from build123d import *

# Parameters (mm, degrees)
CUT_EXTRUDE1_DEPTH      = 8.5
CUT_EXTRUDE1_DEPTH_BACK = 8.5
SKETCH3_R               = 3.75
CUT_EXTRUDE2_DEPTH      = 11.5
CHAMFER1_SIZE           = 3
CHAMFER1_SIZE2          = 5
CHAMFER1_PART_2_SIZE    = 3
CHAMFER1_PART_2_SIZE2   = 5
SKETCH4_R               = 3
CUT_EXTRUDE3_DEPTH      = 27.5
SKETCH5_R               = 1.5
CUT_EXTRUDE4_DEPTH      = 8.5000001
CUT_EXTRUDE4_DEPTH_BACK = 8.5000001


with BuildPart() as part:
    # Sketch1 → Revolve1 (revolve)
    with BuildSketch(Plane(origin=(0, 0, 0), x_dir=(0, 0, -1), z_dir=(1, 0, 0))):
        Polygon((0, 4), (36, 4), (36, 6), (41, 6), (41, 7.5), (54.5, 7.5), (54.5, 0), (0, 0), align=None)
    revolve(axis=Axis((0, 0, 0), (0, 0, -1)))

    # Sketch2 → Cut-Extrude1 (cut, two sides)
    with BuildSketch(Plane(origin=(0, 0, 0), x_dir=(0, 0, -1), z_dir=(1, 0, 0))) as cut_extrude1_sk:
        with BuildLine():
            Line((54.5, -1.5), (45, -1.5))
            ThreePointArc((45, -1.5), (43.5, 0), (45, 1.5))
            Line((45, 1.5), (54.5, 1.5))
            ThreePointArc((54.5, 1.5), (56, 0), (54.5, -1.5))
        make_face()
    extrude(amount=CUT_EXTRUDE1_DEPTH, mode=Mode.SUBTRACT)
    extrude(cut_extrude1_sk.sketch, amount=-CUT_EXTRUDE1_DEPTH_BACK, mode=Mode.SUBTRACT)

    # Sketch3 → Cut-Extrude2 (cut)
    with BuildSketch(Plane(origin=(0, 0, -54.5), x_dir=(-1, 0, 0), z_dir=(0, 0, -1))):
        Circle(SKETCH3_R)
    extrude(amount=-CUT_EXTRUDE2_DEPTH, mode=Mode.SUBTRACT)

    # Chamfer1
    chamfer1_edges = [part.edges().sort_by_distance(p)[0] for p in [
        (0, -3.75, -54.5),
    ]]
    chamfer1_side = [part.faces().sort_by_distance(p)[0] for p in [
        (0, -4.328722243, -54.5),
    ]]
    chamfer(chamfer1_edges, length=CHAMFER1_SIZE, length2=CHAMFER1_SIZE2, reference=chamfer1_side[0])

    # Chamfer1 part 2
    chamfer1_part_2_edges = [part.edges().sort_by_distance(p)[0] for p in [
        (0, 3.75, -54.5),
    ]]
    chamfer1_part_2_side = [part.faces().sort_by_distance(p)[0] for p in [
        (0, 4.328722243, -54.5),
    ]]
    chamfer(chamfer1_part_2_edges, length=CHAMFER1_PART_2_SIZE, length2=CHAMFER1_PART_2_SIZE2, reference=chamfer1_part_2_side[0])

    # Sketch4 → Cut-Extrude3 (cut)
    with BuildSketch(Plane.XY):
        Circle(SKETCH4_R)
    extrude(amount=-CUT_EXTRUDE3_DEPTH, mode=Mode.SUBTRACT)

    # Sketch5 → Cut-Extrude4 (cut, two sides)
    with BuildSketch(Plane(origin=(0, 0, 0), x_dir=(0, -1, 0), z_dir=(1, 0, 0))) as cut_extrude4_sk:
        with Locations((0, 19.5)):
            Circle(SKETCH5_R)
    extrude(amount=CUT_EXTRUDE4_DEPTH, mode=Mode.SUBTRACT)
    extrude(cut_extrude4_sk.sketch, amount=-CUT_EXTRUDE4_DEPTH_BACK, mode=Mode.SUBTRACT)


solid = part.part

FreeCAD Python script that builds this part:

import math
import FreeCAD as App
import Part
import Sketcher

V = App.Vector
Q = App.Units.Quantity


def edges_at(feature, points):
    """Names of the edges that pass closest to the given points."""
    edges = feature.Shape.Edges
    near = lambda p: min(range(len(edges)), key=lambda i: edges[i].distToShape(Part.Vertex(*p))[0])
    return sorted({f"Edge{near(p) + 1}" for p in points})


def add_polygon(sketch, points):
    """Adds a closed chain of lines whose ends are joined by coincident constraints."""
    first, n = sketch.GeometryCount, len(points)
    for a, b in zip(points, points[1:] + points[:1]):
        sketch.addGeometry(Part.LineSegment(App.Vector(*a, 0), App.Vector(*b, 0)), False)
    for i in range(n):
        sketch.addConstraint(Sketcher.Constraint("Coincident", first + i, 2, first + (i + 1) % n, 1))

doc = App.newDocument("Part")
params = doc.addObject("Spreadsheet::Sheet", "Params")
for row, (alias, value) in enumerate([
    ("sketch1_width", "4 mm"),
    ("sketch1_width2", "2 mm"),
    ("sketch1_height", "36 mm"),
    ("sketch1_height2", "5 mm"),
    ("sketch1_width3", "7.5 mm"),
    ("revolution_angle", "360 deg"),
    ("sketch2_radius", "1.5 mm"),
    ("sketch2_height", "9.5 mm"),
    ("sketch3_diameter", "7.5 mm"),
    ("pocket2_length", "11.5 mm"),
    ("chamfer_size", "3 mm"),
    ("chamfer_size2", "5 mm"),
    ("chamfer2_size", "3 mm"),
    ("chamfer2_size2", "5 mm"),
    ("sketch4_diameter", "6 mm"),
    ("pocket3_length", "27.5 mm"),
    ("sketch5_diameter", "3 mm"),
], start=1):
    params.set(f"A{row}", alias)
    params.set(f"B{row}", "=" + value)
    params.setAlias(f"B{row}", alias)

body = doc.addObject("PartDesign::Body", "Body")

# Sketch on YZ plane
sketch1 = body.newObject("Sketcher::SketchObject", "Sketch")
sketch1.AttachmentSupport = (doc.getObject("YZ_Plane"), [""])
sketch1.MapMode = "FlatFace"
add_polygon(sketch1, [(4, -36), (4, 0), (0, 0), (0, -54.5), (7.5, -54.5), (7.5, -41), (6, -41), (6, -36)])  # lines 0-7
sketch1.addConstraint([
    Sketcher.Constraint("Vertical", 0),
    Sketcher.Constraint("Horizontal", 1),
    Sketcher.Constraint("Vertical", 2),
    Sketcher.Constraint("Horizontal", 3),
    Sketcher.Constraint("Vertical", 4),
    Sketcher.Constraint("Horizontal", 5),
    Sketcher.Constraint("Vertical", 6),
    Sketcher.Constraint("Horizontal", 7),
    Sketcher.Constraint("Coincident", 1, 2, -1, 1),
    Sketcher.Constraint("DistanceX", 1, 2, 1, 1, Q("4 mm")),
    Sketcher.Constraint("DistanceX", 7, 2, 7, 1, Q("2 mm")),
    Sketcher.Constraint("DistanceY", 0, 1, 0, 2, Q("36 mm")),
    Sketcher.Constraint("DistanceY", 6, 1, 6, 2, Q("5 mm")),
    Sketcher.Constraint("DistanceX", 3, 1, 3, 2, Q("7.5 mm")),
    Sketcher.Constraint("DistanceY", 2, 2, 2, 1, Q("54.5 mm")),
])
sketch1.setExpression("Constraints[17]", "Params.sketch1_width")
sketch1.setExpression("Constraints[18]", "Params.sketch1_width2")
sketch1.setExpression("Constraints[19]", "Params.sketch1_height")
sketch1.setExpression("Constraints[20]", "Params.sketch1_height2")
sketch1.setExpression("Constraints[21]", "Params.sketch1_width3")
revolution = body.newObject("PartDesign::Revolution", "Revolution")
revolution.Profile = sketch1
revolution.ReferenceAxis = (sketch1, ["V_Axis"])
revolution.setExpression("Angle", "Params.revolution_angle")

# Sketch on YZ plane
sketch2 = body.newObject("Sketcher::SketchObject", "Sketch001")
sketch2.AttachmentSupport = (doc.getObject("YZ_Plane"), [""])
sketch2.MapMode = "FlatFace"
sketch2.addGeometry([
    Part.LineSegment(V(-1.5, -45, 0), V(-1.5, -54.5, 0)),
    Part.ArcOfCircle(Part.Circle(V(0, -54.5, 0), V(0, 0, 1), 1.5), math.radians(180), math.radians(360)),
    Part.LineSegment(V(1.5, -54.5, 0), V(1.5, -45, 0)),
    Part.ArcOfCircle(Part.Circle(V(0, -45, 0), V(0, 0, 1), 1.5), math.radians(0), math.radians(180)),
], False)
sketch2.addConstraint([
    Sketcher.Constraint("Tangent", 0, 2, 1, 1),
    Sketcher.Constraint("Tangent", 1, 2, 2, 1),
    Sketcher.Constraint("Tangent", 2, 2, 3, 1),
    Sketcher.Constraint("Tangent", 3, 2, 0, 1),
    Sketcher.Constraint("Vertical", 0),
    Sketcher.Constraint("Vertical", 2),
    Sketcher.Constraint("PointOnObject", 1, 3, -2),
    Sketcher.Constraint("Radius", 1, Q("1.5 mm")),
    Sketcher.Constraint("DistanceY", 0, 2, 0, 1, Q("9.5 mm")),
    Sketcher.Constraint("DistanceY", 3, 3, -1, 1, Q("45 mm")),
])
sketch2.setExpression("Constraints[7]", "Params.sketch2_radius")
sketch2.setExpression("Constraints[8]", "Params.sketch2_height")
pocket1 = body.newObject("PartDesign::Pocket", "Pocket")
pocket1.Profile = sketch2
pocket1.Type = "ThroughAll"
pocket1.Midplane = True

# Sketch on XY plane
sketch3 = body.newObject("Sketcher::SketchObject", "Sketch002")
sketch3.AttachmentSupport = (doc.getObject("XY_Plane"), [""])
sketch3.MapMode = "FlatFace"
sketch3.AttachmentOffset = App.Placement(V(0, 0, -54.5), App.Rotation())
sketch3.addGeometry(Part.Circle(V(0, 0, 0), V(0, 0, 1), 3.75), False)
sketch3.addConstraint([
    Sketcher.Constraint("Coincident", 0, 3, -1, 1),
    Sketcher.Constraint("Diameter", 0, Q("7.5 mm")),
])
sketch3.setExpression("Constraints[1]", "Params.sketch3_diameter")
pocket2 = body.newObject("PartDesign::Pocket", "Pocket001")
pocket2.Profile = sketch3
pocket2.setExpression("Length", "Params.pocket2_length")
pocket2.Reversed = True
doc.recompute()

chamfer = body.newObject("PartDesign::Chamfer", "Chamfer")
chamfer.Base = (pocket2, edges_at(pocket2, [(0, -3.75, -54.5)]))
chamfer.ChamferType = "Two distances"
chamfer.setExpression("Size", "Params.chamfer_size")
chamfer.setExpression("Size2", "Params.chamfer_size2")
doc.recompute()

chamfer2 = body.newObject("PartDesign::Chamfer", "Chamfer001")
chamfer2.Base = (chamfer, edges_at(chamfer, [(0, 3.75, -54.5)]))
chamfer2.ChamferType = "Two distances"
chamfer2.setExpression("Size", "Params.chamfer2_size")
chamfer2.setExpression("Size2", "Params.chamfer2_size2")
chamfer2.FlipDirection = True

# Sketch on XY plane
sketch4 = body.newObject("Sketcher::SketchObject", "Sketch003")
sketch4.AttachmentSupport = (doc.getObject("XY_Plane"), [""])
sketch4.MapMode = "FlatFace"
sketch4.addGeometry(Part.Circle(V(0, 0, 0), V(0, 0, 1), 3), False)
sketch4.addConstraint([
    Sketcher.Constraint("Coincident", 0, 3, -1, 1),
    Sketcher.Constraint("Diameter", 0, Q("6 mm")),
])
sketch4.setExpression("Constraints[1]", "Params.sketch4_diameter")
pocket3 = body.newObject("PartDesign::Pocket", "Pocket002")
pocket3.Profile = sketch4
pocket3.setExpression("Length", "Params.pocket3_length")

# Sketch on YZ plane
sketch5 = body.newObject("Sketcher::SketchObject", "Sketch004")
sketch5.AttachmentSupport = (doc.getObject("YZ_Plane"), [""])
sketch5.MapMode = "FlatFace"
sketch5.addGeometry(Part.Circle(V(0, -19.5, 0), V(0, 0, 1), 1.5), False)
sketch5.addConstraint([
    Sketcher.Constraint("PointOnObject", 0, 3, -2),
    Sketcher.Constraint("Diameter", 0, Q("3 mm")),
    Sketcher.Constraint("DistanceY", 0, 3, -1, 1, Q("19.5 mm")),
])
sketch5.setExpression("Constraints[1]", "Params.sketch5_diameter")
pocket4 = body.newObject("PartDesign::Pocket", "Pocket003")
pocket4.Profile = sketch5
pocket4.Type = "ThroughAll"
pocket4.Midplane = True

doc.recompute()
